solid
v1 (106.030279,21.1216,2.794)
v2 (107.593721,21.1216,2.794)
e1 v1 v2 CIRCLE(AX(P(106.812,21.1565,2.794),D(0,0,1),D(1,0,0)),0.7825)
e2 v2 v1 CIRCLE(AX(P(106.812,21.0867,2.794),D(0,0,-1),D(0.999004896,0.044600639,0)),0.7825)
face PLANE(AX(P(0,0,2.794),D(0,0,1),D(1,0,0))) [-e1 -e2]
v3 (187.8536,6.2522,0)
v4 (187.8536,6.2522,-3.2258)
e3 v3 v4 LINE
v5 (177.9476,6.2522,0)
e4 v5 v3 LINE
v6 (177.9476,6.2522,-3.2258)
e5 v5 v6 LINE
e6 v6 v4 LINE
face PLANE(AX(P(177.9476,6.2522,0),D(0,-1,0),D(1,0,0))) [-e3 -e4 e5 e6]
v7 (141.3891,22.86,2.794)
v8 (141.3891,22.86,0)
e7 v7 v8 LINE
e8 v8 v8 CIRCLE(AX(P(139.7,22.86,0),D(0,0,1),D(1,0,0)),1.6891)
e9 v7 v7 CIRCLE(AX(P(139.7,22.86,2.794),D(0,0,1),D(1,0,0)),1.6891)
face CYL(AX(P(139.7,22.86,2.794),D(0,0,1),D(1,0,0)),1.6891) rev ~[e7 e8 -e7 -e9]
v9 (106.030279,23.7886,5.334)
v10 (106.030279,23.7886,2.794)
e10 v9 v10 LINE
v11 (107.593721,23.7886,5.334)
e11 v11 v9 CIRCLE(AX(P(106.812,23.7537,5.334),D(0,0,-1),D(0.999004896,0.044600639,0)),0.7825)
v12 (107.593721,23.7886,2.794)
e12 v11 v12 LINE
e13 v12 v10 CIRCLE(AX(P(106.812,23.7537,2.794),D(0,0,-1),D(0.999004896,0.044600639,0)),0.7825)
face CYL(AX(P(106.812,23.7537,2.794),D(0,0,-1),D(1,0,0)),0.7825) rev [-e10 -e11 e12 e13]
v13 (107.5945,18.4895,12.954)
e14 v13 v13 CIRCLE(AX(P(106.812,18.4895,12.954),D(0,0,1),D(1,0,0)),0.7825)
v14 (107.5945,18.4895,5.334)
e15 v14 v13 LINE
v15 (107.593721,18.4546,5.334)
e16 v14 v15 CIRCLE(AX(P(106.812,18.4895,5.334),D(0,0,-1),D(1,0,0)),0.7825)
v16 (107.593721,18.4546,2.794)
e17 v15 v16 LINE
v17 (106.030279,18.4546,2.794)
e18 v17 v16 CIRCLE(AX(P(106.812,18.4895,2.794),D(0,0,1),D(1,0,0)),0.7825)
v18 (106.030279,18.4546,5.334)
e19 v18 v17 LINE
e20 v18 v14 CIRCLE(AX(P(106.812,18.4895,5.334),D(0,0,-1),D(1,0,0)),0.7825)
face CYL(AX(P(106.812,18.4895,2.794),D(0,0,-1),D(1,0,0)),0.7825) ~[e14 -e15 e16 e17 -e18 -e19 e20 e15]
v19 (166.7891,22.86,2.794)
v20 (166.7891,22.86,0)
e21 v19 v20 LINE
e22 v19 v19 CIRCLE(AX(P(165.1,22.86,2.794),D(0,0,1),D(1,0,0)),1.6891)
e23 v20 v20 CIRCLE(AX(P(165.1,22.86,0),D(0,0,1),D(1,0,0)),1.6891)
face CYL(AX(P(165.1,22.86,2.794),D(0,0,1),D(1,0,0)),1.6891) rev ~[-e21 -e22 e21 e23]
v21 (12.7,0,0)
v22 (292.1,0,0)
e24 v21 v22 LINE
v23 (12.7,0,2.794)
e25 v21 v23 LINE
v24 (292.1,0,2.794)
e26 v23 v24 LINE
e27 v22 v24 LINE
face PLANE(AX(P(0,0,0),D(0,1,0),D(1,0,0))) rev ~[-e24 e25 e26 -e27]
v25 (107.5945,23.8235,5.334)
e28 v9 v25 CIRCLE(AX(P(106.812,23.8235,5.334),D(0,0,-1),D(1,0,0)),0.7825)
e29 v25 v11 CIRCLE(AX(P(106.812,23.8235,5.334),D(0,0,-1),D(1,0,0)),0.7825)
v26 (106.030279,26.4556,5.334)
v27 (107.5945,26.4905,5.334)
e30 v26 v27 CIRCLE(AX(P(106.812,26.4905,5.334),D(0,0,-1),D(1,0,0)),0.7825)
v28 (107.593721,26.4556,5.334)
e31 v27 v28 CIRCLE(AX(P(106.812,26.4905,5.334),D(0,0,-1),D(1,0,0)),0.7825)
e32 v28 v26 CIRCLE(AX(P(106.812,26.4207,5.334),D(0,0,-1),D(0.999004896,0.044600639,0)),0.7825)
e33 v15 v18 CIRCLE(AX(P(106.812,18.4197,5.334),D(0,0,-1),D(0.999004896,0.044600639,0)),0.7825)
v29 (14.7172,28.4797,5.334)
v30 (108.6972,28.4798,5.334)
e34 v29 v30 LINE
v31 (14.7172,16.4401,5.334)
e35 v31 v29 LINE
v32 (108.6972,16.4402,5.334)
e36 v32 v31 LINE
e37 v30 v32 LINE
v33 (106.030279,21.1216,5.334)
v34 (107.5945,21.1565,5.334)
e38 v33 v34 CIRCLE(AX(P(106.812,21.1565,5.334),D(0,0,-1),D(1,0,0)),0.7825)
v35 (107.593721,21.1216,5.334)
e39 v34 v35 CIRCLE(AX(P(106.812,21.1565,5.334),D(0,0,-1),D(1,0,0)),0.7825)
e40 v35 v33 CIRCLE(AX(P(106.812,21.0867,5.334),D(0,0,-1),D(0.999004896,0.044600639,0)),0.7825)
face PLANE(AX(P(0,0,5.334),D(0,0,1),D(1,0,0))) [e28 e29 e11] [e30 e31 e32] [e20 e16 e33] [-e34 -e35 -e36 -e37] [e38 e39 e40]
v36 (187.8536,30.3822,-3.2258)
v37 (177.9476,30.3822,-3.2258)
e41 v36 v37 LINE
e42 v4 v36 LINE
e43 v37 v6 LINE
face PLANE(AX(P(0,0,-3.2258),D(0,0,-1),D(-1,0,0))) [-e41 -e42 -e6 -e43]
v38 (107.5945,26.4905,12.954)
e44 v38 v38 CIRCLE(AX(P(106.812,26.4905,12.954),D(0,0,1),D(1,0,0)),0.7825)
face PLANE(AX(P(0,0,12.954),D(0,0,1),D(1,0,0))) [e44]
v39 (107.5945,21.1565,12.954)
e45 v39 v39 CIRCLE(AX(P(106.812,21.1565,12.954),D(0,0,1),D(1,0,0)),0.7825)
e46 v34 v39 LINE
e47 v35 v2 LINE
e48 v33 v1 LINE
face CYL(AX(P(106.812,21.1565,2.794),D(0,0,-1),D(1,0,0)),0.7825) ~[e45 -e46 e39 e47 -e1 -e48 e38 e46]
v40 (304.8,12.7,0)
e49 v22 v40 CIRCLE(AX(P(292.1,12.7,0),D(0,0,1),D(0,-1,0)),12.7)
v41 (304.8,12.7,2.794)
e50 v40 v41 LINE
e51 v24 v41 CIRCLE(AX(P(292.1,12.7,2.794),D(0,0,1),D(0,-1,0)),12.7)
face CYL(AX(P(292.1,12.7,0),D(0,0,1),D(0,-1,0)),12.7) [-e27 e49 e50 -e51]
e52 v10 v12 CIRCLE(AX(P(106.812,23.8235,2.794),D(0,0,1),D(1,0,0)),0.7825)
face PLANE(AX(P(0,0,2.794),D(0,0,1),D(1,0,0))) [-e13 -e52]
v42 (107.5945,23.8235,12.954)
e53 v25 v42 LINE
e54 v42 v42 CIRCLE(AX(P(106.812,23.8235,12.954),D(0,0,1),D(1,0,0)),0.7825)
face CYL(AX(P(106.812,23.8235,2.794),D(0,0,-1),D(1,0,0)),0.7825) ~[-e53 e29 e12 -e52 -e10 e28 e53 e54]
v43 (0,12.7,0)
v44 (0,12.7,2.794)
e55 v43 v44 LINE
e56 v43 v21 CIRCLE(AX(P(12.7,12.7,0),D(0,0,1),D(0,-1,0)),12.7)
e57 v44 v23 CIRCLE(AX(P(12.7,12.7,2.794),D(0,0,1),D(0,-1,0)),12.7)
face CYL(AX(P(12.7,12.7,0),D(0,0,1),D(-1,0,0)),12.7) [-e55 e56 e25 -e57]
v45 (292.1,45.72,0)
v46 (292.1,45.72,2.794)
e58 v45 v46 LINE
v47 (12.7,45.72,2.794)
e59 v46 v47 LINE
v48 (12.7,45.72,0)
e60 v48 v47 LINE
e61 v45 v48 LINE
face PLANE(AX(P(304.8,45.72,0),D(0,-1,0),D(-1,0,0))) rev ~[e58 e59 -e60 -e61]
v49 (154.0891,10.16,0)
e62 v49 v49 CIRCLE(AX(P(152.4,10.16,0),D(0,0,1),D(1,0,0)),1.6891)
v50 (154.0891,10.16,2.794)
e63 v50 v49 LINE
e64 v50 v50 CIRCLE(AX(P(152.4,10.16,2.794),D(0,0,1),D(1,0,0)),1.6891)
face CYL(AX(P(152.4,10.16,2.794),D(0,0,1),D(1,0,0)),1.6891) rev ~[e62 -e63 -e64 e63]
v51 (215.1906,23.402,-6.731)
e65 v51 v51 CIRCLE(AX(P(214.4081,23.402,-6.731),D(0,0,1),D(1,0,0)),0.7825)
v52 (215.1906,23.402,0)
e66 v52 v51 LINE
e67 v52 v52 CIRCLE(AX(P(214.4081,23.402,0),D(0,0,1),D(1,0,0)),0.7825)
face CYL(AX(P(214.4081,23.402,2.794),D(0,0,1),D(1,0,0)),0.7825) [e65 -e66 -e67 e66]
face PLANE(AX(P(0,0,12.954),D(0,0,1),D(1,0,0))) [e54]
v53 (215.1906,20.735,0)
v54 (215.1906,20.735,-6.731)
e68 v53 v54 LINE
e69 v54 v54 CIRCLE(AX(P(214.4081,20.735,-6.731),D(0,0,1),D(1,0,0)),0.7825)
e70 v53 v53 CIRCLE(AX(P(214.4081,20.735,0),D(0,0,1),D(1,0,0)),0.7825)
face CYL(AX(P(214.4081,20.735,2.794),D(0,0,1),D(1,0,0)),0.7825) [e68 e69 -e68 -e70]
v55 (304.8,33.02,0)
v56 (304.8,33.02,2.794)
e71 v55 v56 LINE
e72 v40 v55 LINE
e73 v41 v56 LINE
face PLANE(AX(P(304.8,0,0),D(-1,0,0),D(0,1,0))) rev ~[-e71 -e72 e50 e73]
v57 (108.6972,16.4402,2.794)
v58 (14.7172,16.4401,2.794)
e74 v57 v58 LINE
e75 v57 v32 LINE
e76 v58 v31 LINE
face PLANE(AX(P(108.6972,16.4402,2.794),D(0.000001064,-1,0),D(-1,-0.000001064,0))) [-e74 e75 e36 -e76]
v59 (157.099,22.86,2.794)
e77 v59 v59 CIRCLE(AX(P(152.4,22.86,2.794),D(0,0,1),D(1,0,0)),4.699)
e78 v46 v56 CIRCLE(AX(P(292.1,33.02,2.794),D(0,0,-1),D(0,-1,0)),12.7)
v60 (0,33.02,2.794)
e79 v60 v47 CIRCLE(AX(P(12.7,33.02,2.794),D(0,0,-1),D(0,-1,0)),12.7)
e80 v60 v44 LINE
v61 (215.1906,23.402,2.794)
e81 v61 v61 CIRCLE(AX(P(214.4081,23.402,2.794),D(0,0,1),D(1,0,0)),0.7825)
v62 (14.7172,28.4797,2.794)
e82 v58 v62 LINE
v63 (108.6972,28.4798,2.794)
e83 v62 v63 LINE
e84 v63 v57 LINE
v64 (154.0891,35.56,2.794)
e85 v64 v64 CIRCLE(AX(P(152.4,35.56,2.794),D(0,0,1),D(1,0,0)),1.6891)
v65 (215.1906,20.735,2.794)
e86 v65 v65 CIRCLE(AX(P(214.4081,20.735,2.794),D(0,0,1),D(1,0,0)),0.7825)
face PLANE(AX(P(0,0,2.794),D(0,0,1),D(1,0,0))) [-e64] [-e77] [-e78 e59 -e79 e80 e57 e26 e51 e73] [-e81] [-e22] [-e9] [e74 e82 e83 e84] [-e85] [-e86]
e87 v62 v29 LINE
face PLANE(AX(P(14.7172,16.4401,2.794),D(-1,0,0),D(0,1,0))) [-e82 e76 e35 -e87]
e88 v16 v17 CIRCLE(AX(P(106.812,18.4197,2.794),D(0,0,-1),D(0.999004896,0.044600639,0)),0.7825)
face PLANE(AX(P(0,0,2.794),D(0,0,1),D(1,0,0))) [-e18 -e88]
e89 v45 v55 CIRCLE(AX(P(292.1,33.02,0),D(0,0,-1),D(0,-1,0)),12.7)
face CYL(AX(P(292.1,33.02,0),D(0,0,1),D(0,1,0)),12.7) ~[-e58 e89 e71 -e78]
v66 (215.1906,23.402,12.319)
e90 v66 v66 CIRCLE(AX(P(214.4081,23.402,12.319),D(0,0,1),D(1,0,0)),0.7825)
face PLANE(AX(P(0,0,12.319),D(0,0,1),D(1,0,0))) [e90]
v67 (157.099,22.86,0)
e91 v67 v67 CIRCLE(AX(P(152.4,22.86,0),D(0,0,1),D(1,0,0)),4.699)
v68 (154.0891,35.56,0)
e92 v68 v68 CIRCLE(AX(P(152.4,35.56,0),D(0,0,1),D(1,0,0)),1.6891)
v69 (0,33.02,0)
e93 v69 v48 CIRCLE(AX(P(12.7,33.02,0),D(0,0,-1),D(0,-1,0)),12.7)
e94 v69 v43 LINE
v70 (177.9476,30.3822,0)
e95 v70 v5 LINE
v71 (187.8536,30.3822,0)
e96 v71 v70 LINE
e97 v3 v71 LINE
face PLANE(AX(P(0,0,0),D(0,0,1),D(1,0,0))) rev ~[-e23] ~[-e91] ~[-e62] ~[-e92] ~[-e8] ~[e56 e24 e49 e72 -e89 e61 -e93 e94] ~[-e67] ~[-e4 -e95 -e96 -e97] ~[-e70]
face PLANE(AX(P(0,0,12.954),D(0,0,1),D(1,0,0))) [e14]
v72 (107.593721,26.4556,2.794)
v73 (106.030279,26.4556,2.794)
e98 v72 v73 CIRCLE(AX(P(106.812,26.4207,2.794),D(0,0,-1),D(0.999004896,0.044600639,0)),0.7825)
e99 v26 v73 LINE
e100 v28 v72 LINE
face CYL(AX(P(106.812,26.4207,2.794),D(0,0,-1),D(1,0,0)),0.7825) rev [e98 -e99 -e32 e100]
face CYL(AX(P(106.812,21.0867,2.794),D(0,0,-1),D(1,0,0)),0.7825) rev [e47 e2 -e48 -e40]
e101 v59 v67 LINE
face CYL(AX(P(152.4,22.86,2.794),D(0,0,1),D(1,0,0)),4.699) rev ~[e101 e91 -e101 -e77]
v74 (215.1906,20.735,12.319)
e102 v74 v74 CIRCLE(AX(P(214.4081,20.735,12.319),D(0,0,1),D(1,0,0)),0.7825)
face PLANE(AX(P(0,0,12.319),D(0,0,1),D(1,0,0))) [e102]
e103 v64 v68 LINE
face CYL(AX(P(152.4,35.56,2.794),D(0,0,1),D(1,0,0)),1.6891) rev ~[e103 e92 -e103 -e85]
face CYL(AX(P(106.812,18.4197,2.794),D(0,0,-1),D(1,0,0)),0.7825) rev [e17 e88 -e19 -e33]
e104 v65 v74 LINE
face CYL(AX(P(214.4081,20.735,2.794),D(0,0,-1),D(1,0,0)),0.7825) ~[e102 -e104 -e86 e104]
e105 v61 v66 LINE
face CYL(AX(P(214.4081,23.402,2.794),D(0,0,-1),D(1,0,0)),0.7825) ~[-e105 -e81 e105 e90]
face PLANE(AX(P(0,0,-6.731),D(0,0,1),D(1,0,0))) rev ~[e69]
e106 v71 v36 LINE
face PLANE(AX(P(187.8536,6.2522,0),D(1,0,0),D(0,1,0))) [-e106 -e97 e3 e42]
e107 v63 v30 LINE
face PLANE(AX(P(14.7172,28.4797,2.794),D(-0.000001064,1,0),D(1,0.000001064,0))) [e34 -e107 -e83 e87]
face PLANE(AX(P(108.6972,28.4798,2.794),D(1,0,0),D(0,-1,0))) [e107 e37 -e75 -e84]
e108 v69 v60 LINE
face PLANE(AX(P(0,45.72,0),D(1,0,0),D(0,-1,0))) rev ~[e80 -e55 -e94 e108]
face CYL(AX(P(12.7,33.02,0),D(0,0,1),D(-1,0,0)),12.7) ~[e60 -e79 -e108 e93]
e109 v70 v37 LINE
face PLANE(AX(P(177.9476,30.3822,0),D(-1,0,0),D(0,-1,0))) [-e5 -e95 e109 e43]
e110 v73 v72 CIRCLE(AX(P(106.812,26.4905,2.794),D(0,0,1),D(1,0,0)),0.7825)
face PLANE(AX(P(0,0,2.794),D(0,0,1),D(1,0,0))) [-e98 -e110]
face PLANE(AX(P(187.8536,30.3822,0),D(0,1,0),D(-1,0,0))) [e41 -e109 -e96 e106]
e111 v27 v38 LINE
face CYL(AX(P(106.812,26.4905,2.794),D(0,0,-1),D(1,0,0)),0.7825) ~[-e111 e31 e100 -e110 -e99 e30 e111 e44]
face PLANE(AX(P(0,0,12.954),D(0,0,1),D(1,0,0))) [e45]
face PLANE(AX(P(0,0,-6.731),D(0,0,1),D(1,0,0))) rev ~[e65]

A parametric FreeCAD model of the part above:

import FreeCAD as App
import Part
import Sketcher
Q = App.Units.Quantity


def edges_at(feature, points):
    """Names of the edges that pass closest to the given points."""
    edges = feature.Shape.Edges
    near = lambda p: min(range(len(edges)), key=lambda i: edges[i].distToShape(Part.Vertex(*p))[0])
    return sorted({f"Edge{near(p) + 1}" for p in points})


def add_polygon(sketch, points):
    """Adds a closed chain of lines whose ends are joined by coincident constraints."""
    first, n = sketch.GeometryCount, len(points)
    for a, b in zip(points, points[1:] + points[:1]):
        sketch.addGeometry(Part.LineSegment(App.Vector(*a, 0), App.Vector(*b, 0)), False)
    for i in range(n):
        sketch.addConstraint(Sketcher.Constraint("Coincident", first + i, 2, first + (i + 1) % n, 1))

doc = App.newDocument("Part")
body = doc.addObject("PartDesign::Body", "Body")

# Sketch on XY plane
sketch1 = doc.addObject("Sketcher::SketchObject", "Sketch")
body.addObject(sketch1)
sketch1.AttachmentSupport = (doc.XY_Plane, [""])
sketch1.MapMode = "FlatFace"
add_polygon(sketch1, [(0, 46), (0, 0), (305, 0), (305, 46)])  # lines 0-3
sketch1.addConstraint([
    Sketcher.Constraint("Vertical", 0),
    Sketcher.Constraint("Horizontal", 1),
    Sketcher.Constraint("Vertical", 2),
    Sketcher.Constraint("Horizontal", 3),
    Sketcher.Constraint("Coincident", 0, 2, -1, 1),
    Sketcher.Constraint("DistanceX", 1, 1, 1, 2, Q("12 in")),
    Sketcher.Constraint("DistanceY", 0, 2, 0, 1, Q("1.8 in")),
])
pad1 = doc.addObject("PartDesign::Pad", "Pad")
body.addObject(pad1)
pad1.Profile = sketch1
pad1.Length = Q("0.11 in")

# Sketch on XY plane
sketch2 = doc.addObject("Sketcher::SketchObject", "Sketch001")
body.addObject(sketch2)
sketch2.AttachmentSupport = (doc.XY_Plane, [""])
sketch2.MapMode = "FlatFace"
sketch2.AttachmentOffset = App.Placement(App.Vector(0, 0, 0.11 * 25.4), App.Rotation())
sketch2.addGeometry([
    Part.Circle(App.Vector(106.8, 26.5, 0), App.Vector(0, 0, 1), 0.8),
    Part.Circle(App.Vector(106.8, 23.8, 0), App.Vector(0, 0, 1), 0.8),
    Part.Circle(App.Vector(106.8, 21.2, 0), App.Vector(0, 0, 1), 0.8),
    Part.Circle(App.Vector(106.8, 18.5, 0), App.Vector(0, 0, 1), 0.8),
], False)
sketch2.addConstraint([
    Sketcher.Constraint("Equal", 0, 1),
    Sketcher.Constraint("Equal", 1, 2),
    Sketcher.Constraint("Equal", 2, 3),
    Sketcher.Constraint("Vertical", 0, 3, 1, 3),
    Sketcher.Constraint("Vertical", 1, 3, 2, 3),
    Sketcher.Constraint("Vertical", 2, 3, 3, 3),
    Sketcher.Constraint("DistanceY", 1, 3, 0, 3, Q("0.105 in")),
    Sketcher.Constraint("DistanceY", 2, 3, 1, 3, Q("0.105 in")),
    Sketcher.Constraint("DistanceY", 3, 3, 2, 3, Q("0.105 in")),
    Sketcher.Constraint("Diameter", 0, Q("1.565 mm")),
    Sketcher.Constraint("DistanceX", -1, 1, 0, 3, Q("4.2052 in")),
    Sketcher.Constraint("DistanceY", -1, 1, 0, 3, Q("26.4905 mm")),
])
pad2 = doc.addObject("PartDesign::Pad", "Pad001")
body.addObject(pad2)
pad2.Profile = sketch2
pad2.Length = Q("0.4 in")

# Sketch on XY plane
sketch3 = doc.addObject("Sketcher::SketchObject", "Sketch002")
body.addObject(sketch3)
sketch3.AttachmentSupport = (doc.XY_Plane, [""])
sketch3.MapMode = "FlatFace"
sketch3.AttachmentOffset = App.Placement(App.Vector(0, 0, 0.11 * 25.4), App.Rotation())
add_polygon(sketch3, [(14.7, 16.4), (108.7, 16.4), (108.7, 28.5), (14.7, 28.5)])  # lines 0-3
sketch3.addGeometry(Part.Circle(App.Vector(106.8, 18.4, 0), App.Vector(0, 0, 1), 0.8), False)  # 4
sketch3.addGeometry(Part.Circle(App.Vector(106.8, 21.1, 0), App.Vector(0, 0, 1), 0.8), False)  # 5
sketch3.addGeometry(Part.Circle(App.Vector(106.8, 23.8, 0), App.Vector(0, 0, 1), 0.8), False)  # 6
sketch3.addGeometry(Part.Circle(App.Vector(106.8, 26.4, 0), App.Vector(0, 0, 1), 0.8), False)  # 7
sketch3.addConstraint([
    Sketcher.Constraint("Horizontal", 0),
    Sketcher.Constraint("Vertical", 1),
    Sketcher.Constraint("Horizontal", 2),
    Sketcher.Constraint("Vertical", 3),
    Sketcher.Constraint("Equal", 4, 5),
    Sketcher.Constraint("Equal", 5, 6),
    Sketcher.Constraint("Equal", 6, 7),
    Sketcher.Constraint("Vertical", 4, 3, 5, 3),
    Sketcher.Constraint("Vertical", 5, 3, 6, 3),
    Sketcher.Constraint("Vertical", 6, 3, 7, 3),
    Sketcher.Constraint("DistanceX", 0, 1, 0, 2, Q("3.7 in")),
    Sketcher.Constraint("DistanceY", 1, 1, 1, 2, Q("0.474 in")),
    Sketcher.Constraint("DistanceY", 4, 3, 5, 3, Q("0.105 in")),
    Sketcher.Constraint("DistanceY", 5, 3, 6, 3, Q("0.105 in")),
    Sketcher.Constraint("DistanceY", 6, 3, 7, 3, Q("0.105 in")),
    Sketcher.Constraint("Diameter", 4, Q("1.565 mm")),
    Sketcher.Constraint("DistanceY", -1, 1, 0, 2, Q("16.4402 mm")),
    Sketcher.Constraint("DistanceX", 4, 3, 0, 2, Q("1.8852 mm")),
    Sketcher.Constraint("DistanceY", 7, 3, 1, 2, Q("2.059 mm")),
    Sketcher.Constraint("DistanceX", -1, 1, 4, 3, Q("4.2052 in")),
])
pad3 = doc.addObject("PartDesign::Pad", "Pad002")
body.addObject(pad3)
pad3.Profile = sketch3
pad3.Length = Q("0.1 in")

# Sketch on XY plane
sketch4 = doc.addObject("Sketcher::SketchObject", "Sketch003")
body.addObject(sketch4)
sketch4.AttachmentSupport = (doc.XY_Plane, [""])
sketch4.MapMode = "FlatFace"
sketch4.AttachmentOffset = App.Placement(App.Vector(0, 0, 0.11 * 25.4), App.Rotation())
sketch4.addGeometry([
    Part.Circle(App.Vector(214.4, 23.4, 0), App.Vector(0, 0, 1), 0.8),
    Part.Circle(App.Vector(214.4, 20.7, 0), App.Vector(0, 0, 1), 0.8),
], False)
sketch4.addConstraint([
    Sketcher.Constraint("Equal", 0, 1),
    Sketcher.Constraint("Vertical", 0, 3, 1, 3),
    Sketcher.Constraint("Diameter", 0, Q("1.565 mm")),
    Sketcher.Constraint("DistanceY", 1, 3, 0, 3, Q("0.105 in")),
    Sketcher.Constraint("DistanceX", -1, 1, 0, 3, Q("214.408 mm")),
    Sketcher.Constraint("DistanceY", -1, 1, 0, 3, Q("23.402 mm")),
])
pad4 = doc.addObject("PartDesign::Pad", "Pad003")
body.addObject(pad4)
pad4.Profile = sketch4
pad4.Length = Q("0.75 in")
pad4.Midplane = True

# Sketch on XY plane
sketch5 = doc.addObject("Sketcher::SketchObject", "Sketch004")
body.addObject(sketch5)
sketch5.AttachmentSupport = (doc.XY_Plane, [""])
sketch5.MapMode = "FlatFace"
sketch5.AttachmentOffset = App.Placement(App.Vector(0, 0, 0.11 * 25.4), App.Rotation())
sketch5.addGeometry([
    Part.Circle(App.Vector(152.4, 35.6, 0), App.Vector(0, 0, 1), 1.7),  # 0
    Part.Circle(App.Vector(152.4, 10.2, 0), App.Vector(0, 0, 1), 1.7),  # 1
    Part.Circle(App.Vector(165.1, 22.9, 0), App.Vector(0, 0, 1), 1.7),  # 2
    Part.Circle(App.Vector(139.7, 22.9, 0), App.Vector(0, 0, 1), 1.7),  # 3
    Part.Circle(App.Vector(152.4, 22.9, 0), App.Vector(0, 0, 1), 4.7),  # 4
], False)
sketch5.addConstraint([
    Sketcher.Constraint("Equal", 0, 1),
    Sketcher.Constraint("Equal", 1, 2),
    Sketcher.Constraint("Equal", 2, 3),
    Sketcher.Constraint("Horizontal", 2, 3, 3, 3),
    Sketcher.Constraint("Horizontal", 3, 3, 4, 3),
    Sketcher.Constraint("Vertical", 0, 3, 1, 3),
    Sketcher.Constraint("Vertical", 1, 3, 4, 3),
    Sketcher.Constraint("Diameter", 4, Q("0.37 in")),
    Sketcher.Constraint("Diameter", 0, Q("0.133 in")),
    Sketcher.Constraint("DistanceX", 0, 3, 2, 3, Q("0.5 in")),
    Sketcher.Constraint("DistanceY", 2, 3, 0, 3, Q("0.5 in")),
    Sketcher.Constraint("DistanceY", 1, 3, 2, 3, Q("0.5 in")),
    Sketcher.Constraint("DistanceX", 3, 3, 1, 3, Q("0.5 in")),
    Sketcher.Constraint("DistanceX", -1, 1, 0, 3, Q("6 in")),
    Sketcher.Constraint("DistanceY", -1, 1, 0, 3, Q("1.4 in")),
])
pocket1 = doc.addObject("PartDesign::Pocket", "Pocket")
body.addObject(pocket1)
pocket1.Profile = sketch5
pocket1.Length = Q("0.35 in")
doc.recompute()

fillet = doc.addObject("PartDesign::Fillet", "Fillet")
body.addObject(fillet)
fillet.Base = (pocket1, edges_at(pocket1, [
    (304.8, 0, 1.397),
    (304.8, 45.72, 1.397),
    (0, 0, 1.397),
    (0, 45.72, 1.397),
]))
fillet.Radius = Q("0.5 in")

# Sketch on XY plane
sketch6 = doc.addObject("Sketcher::SketchObject", "Sketch005")
body.addObject(sketch6)
sketch6.AttachmentSupport = (doc.XY_Plane, [""])
sketch6.MapMode = "FlatFace"
add_polygon(sketch6, [(188, 6), (178, 6), (178, 30), (188, 30)])  # lines 0-3
sketch6.addConstraint([
    Sketcher.Constraint("Horizontal", 0),
    Sketcher.Constraint("Vertical", 1),
    Sketcher.Constraint("Horizontal", 2),
    Sketcher.Constraint("Vertical", 3),
    Sketcher.Constraint("DistanceX", 0, 2, 0, 1, Q("0.39 in")),
    Sketcher.Constraint("DistanceY", 1, 1, 1, 2, Q("0.95 in")),
    Sketcher.Constraint("DistanceX", -1, 1, 0, 2, Q("7.0058 in")),
    Sketcher.Constraint("DistanceY", -1, 1, 0, 2, Q("6.2522 mm")),
])
pad5 = doc.addObject("PartDesign::Pad", "Pad004")
body.addObject(pad5)
pad5.Profile = sketch6
pad5.Length = Q("0.127 in")
pad5.Reversed = True

doc.recompute()
